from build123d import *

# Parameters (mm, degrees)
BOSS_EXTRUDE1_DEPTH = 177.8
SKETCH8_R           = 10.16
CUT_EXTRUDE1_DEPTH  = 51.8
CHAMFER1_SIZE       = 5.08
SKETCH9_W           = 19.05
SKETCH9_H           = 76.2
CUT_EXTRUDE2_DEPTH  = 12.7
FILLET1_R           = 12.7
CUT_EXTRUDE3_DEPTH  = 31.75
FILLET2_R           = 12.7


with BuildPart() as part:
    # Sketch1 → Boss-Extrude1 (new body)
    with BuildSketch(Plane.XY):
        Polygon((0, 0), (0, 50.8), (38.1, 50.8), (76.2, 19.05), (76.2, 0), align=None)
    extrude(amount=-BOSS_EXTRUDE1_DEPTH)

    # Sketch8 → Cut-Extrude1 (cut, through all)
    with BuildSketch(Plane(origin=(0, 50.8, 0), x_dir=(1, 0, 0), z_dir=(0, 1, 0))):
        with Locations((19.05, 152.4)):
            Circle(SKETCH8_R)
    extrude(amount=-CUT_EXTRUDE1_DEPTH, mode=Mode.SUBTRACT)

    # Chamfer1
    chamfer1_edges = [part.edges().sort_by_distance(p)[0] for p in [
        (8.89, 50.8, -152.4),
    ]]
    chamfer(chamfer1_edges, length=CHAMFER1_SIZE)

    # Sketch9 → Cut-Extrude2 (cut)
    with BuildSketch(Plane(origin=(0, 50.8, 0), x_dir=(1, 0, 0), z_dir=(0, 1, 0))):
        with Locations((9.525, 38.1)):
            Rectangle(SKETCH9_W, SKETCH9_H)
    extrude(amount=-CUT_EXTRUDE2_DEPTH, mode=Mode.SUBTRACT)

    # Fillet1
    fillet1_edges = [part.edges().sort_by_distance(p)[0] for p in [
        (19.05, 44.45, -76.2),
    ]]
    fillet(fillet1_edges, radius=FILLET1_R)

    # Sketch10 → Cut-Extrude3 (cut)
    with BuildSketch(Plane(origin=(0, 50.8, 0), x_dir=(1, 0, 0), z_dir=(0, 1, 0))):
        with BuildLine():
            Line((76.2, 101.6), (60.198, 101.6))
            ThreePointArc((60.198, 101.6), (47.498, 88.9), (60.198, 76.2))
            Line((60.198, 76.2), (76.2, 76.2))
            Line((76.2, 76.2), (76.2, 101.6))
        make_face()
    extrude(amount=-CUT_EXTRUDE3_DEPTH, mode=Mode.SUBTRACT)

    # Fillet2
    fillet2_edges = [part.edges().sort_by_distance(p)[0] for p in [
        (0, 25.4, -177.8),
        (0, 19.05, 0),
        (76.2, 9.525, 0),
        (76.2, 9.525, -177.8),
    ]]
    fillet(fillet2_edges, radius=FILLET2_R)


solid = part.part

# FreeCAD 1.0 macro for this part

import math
import FreeCAD as App
import Part
import Sketcher
Q = App.Units.Quantity


def edges_at(feature, points):
    """Names of the edges that pass closest to the given points."""
    edges = feature.Shape.Edges
    near = lambda p: min(range(len(edges)), key=lambda i: edges[i].distToShape(Part.Vertex(*p))[0])
    return sorted({f"Edge{near(p) + 1}" for p in points})

doc = App.newDocument("Part")
body = doc.addObject("PartDesign::Body", "Body")

# Sketch on XY plane
sketch1 = body.newObject("Sketcher::SketchObject", "Sketch")
sketch1.AttachmentSupport = (doc.getObject("XY_Plane"), [""])
sketch1.MapMode = "FlatFace"
sketch1.addGeometry([
    Part.LineSegment(App.Vector(0, 51, 0), App.Vector(0, 0, 0)),  # 0
    Part.LineSegment(App.Vector(0, 0, 0), App.Vector(76, 0, 0)),  # 1
    Part.LineSegment(App.Vector(76, 0, 0), App.Vector(76, 19, 0)),  # 2
    Part.LineSegment(App.Vector(76, 19, 0), App.Vector(38, 51, 0)),  # 3
    Part.LineSegment(App.Vector(38, 51, 0), App.Vector(0, 51, 0)),  # 4
], False)
sketch1.addConstraint([
    Sketcher.Constraint("Coincident", 0, 2, 1, 1),
    Sketcher.Constraint("Coincident", 1, 2, 2, 1),
    Sketcher.Constraint("Coincident", 2, 2, 3, 1),
    Sketcher.Constraint("Coincident", 3, 2, 4, 1),
    Sketcher.Constraint("Coincident", 4, 2, 0, 1),
    Sketcher.Constraint("Vertical", 0),
    Sketcher.Constraint("Horizontal", 1),
    Sketcher.Constraint("Vertical", 2),
    Sketcher.Constraint("Horizontal", 4),
    Sketcher.Constraint("Coincident", 0, 2, -1, 1),
    Sketcher.Constraint("DistanceX", 1, 1, 1, 2, Q("3 in")),
    Sketcher.Constraint("DistanceY", 0, 2, 0, 1, Q("2 in")),
    Sketcher.Constraint("DistanceX", 4, 2, 4, 1, Q("1.5 in")),
    Sketcher.Constraint("DistanceY", 2, 1, 2, 2, Q("0.75 in")),
])
pad1 = body.newObject("PartDesign::Pad", "Pad")
pad1.Profile = sketch1
pad1.Length = Q("7 in")
pad1.Reversed = True

# Sketch on XZ plane
sketch2 = body.newObject("Sketcher::SketchObject", "Sketch001")
sketch2.AttachmentSupport = (doc.getObject("XZ_Plane"), [""])
sketch2.MapMode = "FlatFace"
sketch2.AttachmentOffset = App.Placement(App.Vector(0, 0, -2 * 25.4), App.Rotation())
sketch2.addGeometry(Part.Circle(App.Vector(19, -152, 0), App.Vector(0, 0, 1), 10), False)
sketch2.addConstraint([
    Sketcher.Constraint("Diameter", 0, Q("0.8 in")),
    Sketcher.Constraint("DistanceY", 0, 3, -1, 1, Q("6 in")),
    Sketcher.Constraint("DistanceX", -1, 1, 0, 3, Q("0.75 in")),
])
pocket1 = body.newObject("PartDesign::Pocket", "Pocket")
pocket1.Profile = sketch2
pocket1.Type = "ThroughAll"
pocket1.Reversed = True
doc.recompute()

chamfer = body.newObject("PartDesign::Chamfer", "Chamfer")
chamfer.Base = (pocket1, edges_at(pocket1, [(8.89, 50.8, -152.4)]))
chamfer.Size = Q("0.2 in")

# Sketch on XZ plane
sketch3 = body.newObject("Sketcher::SketchObject", "Sketch002")
sketch3.AttachmentSupport = (doc.getObject("XZ_Plane"), [""])
sketch3.MapMode = "FlatFace"
sketch3.AttachmentOffset = App.Placement(App.Vector(0, 0, -2 * 25.4), App.Rotation())
sketch3.addGeometry([
    Part.LineSegment(App.Vector(0, -76, 0), App.Vector(0, 0, 0)),
    Part.LineSegment(App.Vector(0, 0, 0), App.Vector(19, 0, 0)),
    Part.LineSegment(App.Vector(19, 0, 0), App.Vector(19, -76, 0)),
    Part.LineSegment(App.Vector(19, -76, 0), App.Vector(0, -76, 0)),
], False)
sketch3.addConstraint([
    Sketcher.Constraint("Coincident", 0, 2, 1, 1),
    Sketcher.Constraint("Coincident", 1, 2, 2, 1),
    Sketcher.Constraint("Coincident", 2, 2, 3, 1),
    Sketcher.Constraint("Coincident", 3, 2, 0, 1),
    Sketcher.Constraint("Vertical", 0),
    Sketcher.Constraint("Horizontal", 1),
    Sketcher.Constraint("Vertical", 2),
    Sketcher.Constraint("Horizontal", 3),
    Sketcher.Constraint("Coincident", 0, 2, -1, 1),
    Sketcher.Constraint("DistanceY", 0, 1, 0, 2, Q("3 in")),
    Sketcher.Constraint("DistanceX", 1, 1, 1, 2, Q("0.75 in")),
])
pocket2 = body.newObject("PartDesign::Pocket", "Pocket001")
pocket2.Profile = sketch3
pocket2.Length = Q("0.5 in")
pocket2.Reversed = True
doc.recompute()

fillet = body.newObject("PartDesign::Fillet", "Fillet")
fillet.Base = (pocket2, edges_at(pocket2, [(19.05, 44.45, -76.2)]))
fillet.Radius = Q("0.5 in")

# Sketch on XZ plane
sketch4 = body.newObject("Sketcher::SketchObject", "Sketch003")
sketch4.AttachmentSupport = (doc.getObject("XZ_Plane"), [""])
sketch4.MapMode = "FlatFace"
sketch4.AttachmentOffset = App.Placement(App.Vector(0, 0, -2 * 25.4), App.Rotation())
sketch4.addGeometry([
    Part.LineSegment(App.Vector(76, -102, 0), App.Vector(60, -102, 0)),
    Part.ArcOfCircle(Part.Circle(App.Vector(60, -89, 0), App.Vector(0, 0, 1), 13), math.radians(90), math.radians(270)),
    Part.LineSegment(App.Vector(60, -76, 0), App.Vector(76, -76, 0)),
    Part.LineSegment(App.Vector(76, -76, 0), App.Vector(76, -102, 0)),
], False)
sketch4.addConstraint([
    Sketcher.Constraint("Tangent", 0, 2, 1, 2),
    Sketcher.Constraint("Tangent", 1, 1, 2, 1),
    Sketcher.Constraint("Coincident", 2, 2, 3, 1),
    Sketcher.Constraint("Coincident", 3, 2, 0, 1),
    Sketcher.Constraint("Horizontal", 0),
    Sketcher.Constraint("Horizontal", 2),
    Sketcher.Constraint("Vertical", 3),
    Sketcher.Constraint("Radius", 1, Q("0.5 in")),
    Sketcher.Constraint("DistanceY", 0, 2, -1, 1, Q("4 in")),
    Sketcher.Constraint("DistanceX", -1, 1, 2, 2, Q("3 in")),
    Sketcher.Constraint("DistanceX", 0, 2, 0, 1, Q("0.63 in")),
])
pocket3 = body.newObject("PartDesign::Pocket", "Pocket002")
pocket3.Profile = sketch4
pocket3.Length = Q("1.25 in")
pocket3.Reversed = True
doc.recompute()

fillet2 = body.newObject("PartDesign::Fillet", "Fillet001")
fillet2.Base = (pocket3, edges_at(pocket3, [
    (0, 25.4, -177.8),
    (0, 19.05, 0),
    (76.2, 9.525, 0),
    (76.2, 9.525, -177.8),
]))
fillet2.Radius = Q("0.5 in")

doc.recompute()
